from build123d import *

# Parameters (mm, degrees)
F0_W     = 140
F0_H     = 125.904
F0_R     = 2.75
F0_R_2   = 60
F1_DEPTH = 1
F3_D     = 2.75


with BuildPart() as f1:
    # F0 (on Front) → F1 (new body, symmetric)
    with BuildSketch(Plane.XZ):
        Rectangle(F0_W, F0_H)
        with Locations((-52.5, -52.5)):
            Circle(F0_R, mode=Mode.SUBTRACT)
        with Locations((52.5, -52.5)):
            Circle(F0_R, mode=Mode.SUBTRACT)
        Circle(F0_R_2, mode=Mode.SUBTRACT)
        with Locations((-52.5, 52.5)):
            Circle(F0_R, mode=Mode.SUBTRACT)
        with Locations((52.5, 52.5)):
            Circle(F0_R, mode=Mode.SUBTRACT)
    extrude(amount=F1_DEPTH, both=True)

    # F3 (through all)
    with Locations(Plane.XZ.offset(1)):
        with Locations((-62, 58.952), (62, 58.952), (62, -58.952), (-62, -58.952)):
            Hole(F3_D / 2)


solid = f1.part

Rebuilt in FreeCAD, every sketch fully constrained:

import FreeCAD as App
import Part
import Sketcher

V = App.Vector
Q = App.Units.Quantity


def add_polygon(sketch, points):
    """Adds a closed chain of lines whose ends are joined by coincident constraints."""
    first, n = sketch.GeometryCount, len(points)
    for a, b in zip(points, points[1:] + points[:1]):
        sketch.addGeometry(Part.LineSegment(App.Vector(*a, 0), App.Vector(*b, 0)), False)
    for i in range(n):
        sketch.addConstraint(Sketcher.Constraint("Coincident", first + i, 2, first + (i + 1) % n, 1))

doc = App.newDocument("Part")
params = doc.addObject("Spreadsheet::Sheet", "Params")
for row, (alias, value) in enumerate([
    ("sketch1_diameter", "120 mm"),
    ("sketch1_diameter2", "5.5 mm"),
    ("sketch1_width", "140 mm"),
    ("pad1_length", "2 mm"),
    ("sketch2_diameter", "2.75 mm"),
    ("hole_diameter", "2.75 mm"),
], start=1):
    params.set(f"A{row}", alias)
    params.set(f"B{row}", "=" + value)
    params.setAlias(f"B{row}", alias)

body = doc.addObject("PartDesign::Body", "Body")

# Sketch on XZ plane
sketch1 = body.newObject("Sketcher::SketchObject", "Sketch")
sketch1.AttachmentSupport = (doc.getObject("XZ_Plane"), [""])
sketch1.MapMode = "FlatFace"
add_polygon(sketch1, [(-70, 63), (-70, -63), (70, -63), (70, 63)])  # lines 0-3
sketch1.addGeometry(Part.Circle(V(-52.5, -52.5, 0), V(0, 0, 1), 2.8), False)  # 4
sketch1.addGeometry(Part.Circle(V(52.5, -52.5, 0), V(0, 0, 1), 2.8), False)  # 5
sketch1.addGeometry(Part.Circle(V(-52.5, 52.5, 0), V(0, 0, 1), 2.8), False)  # 6
sketch1.addGeometry(Part.Circle(V(0, 0, 0), V(0, 0, 1), 60), False)  # 7
sketch1.addGeometry(Part.Circle(V(52.5, 52.5, 0), V(0, 0, 1), 2.8), False)  # 8
sketch1.addConstraint(Sketcher.Constraint("Vertical", 0))
sketch1.addConstraint(Sketcher.Constraint("Horizontal", 1))
sketch1.addConstraint(Sketcher.Constraint("Vertical", 2))
sketch1.addConstraint(Sketcher.Constraint("Horizontal", 3))
sketch1.addConstraint(Sketcher.Constraint("Coincident", 7, 3, -1, 1))
sketch1.addConstraint(Sketcher.Constraint("Equal", 4, 5))
sketch1.addConstraint(Sketcher.Constraint("Equal", 5, 6))
sketch1.addConstraint(Sketcher.Constraint("Equal", 6, 8))
sketch1.addConstraint(Sketcher.Constraint("Symmetric", 5, 3, 6, 3, -1, 1))
sketch1.addConstraint(Sketcher.Constraint("Symmetric", 4, 3, 8, 3, -1, 1))
sketch1.addConstraint(Sketcher.Constraint("Symmetric", 0, 2, 2, 2, -1, 1))
sketch1.addConstraint(Sketcher.Constraint("Symmetric", 4, 3, 5, 3, -2))
sketch1.addConstraint(Sketcher.Constraint("Diameter", 7, Q("120 mm")))
sketch1.addConstraint(Sketcher.Constraint("Diameter", 4, Q("5.5 mm")))
sketch1.addConstraint(Sketcher.Constraint("DistanceX", 1, 1, 1, 2, Q("140 mm")))
sketch1.addConstraint(Sketcher.Constraint("DistanceX", 4, 3, 5, 3, Q("105 mm")))
sketch1.addConstraint(Sketcher.Constraint("DistanceY", 4, 3, 6, 3, Q("105 mm")))
sketch1.addConstraint(Sketcher.Constraint("DistanceY", 0, 2, 0, 1, Q("125.904 mm")))
sketch1.setExpression("Constraints[16]", "Params.sketch1_diameter")
sketch1.setExpression("Constraints[17]", "Params.sketch1_diameter2")
sketch1.setExpression("Constraints[18]", "Params.sketch1_width")
pad1 = body.newObject("PartDesign::Pad", "Pad")
pad1.Profile = sketch1
pad1.setExpression("Length", "Params.pad1_length")
pad1.Midplane = True

# Sketch on XZ plane
sketch2 = body.newObject("Sketcher::SketchObject", "Sketch001")
sketch2.AttachmentSupport = (doc.getObject("XZ_Plane"), [""])
sketch2.MapMode = "FlatFace"
sketch2.AttachmentOffset = App.Placement(V(0, 0, 1), App.Rotation())
sketch2.addGeometry(Part.Circle(V(-62, 59, 0), V(0, 0, 1), 1.4), False)
sketch2.addGeometry(Part.Circle(V(62, 59, 0), V(0, 0, 1), 1.4), False)
sketch2.addGeometry(Part.Circle(V(62, -59, 0), V(0, 0, 1), 1.4), False)
sketch2.addGeometry(Part.Circle(V(-62, -59, 0), V(0, 0, 1), 1.4), False)
sketch2.addConstraint(Sketcher.Constraint("Equal", 0, 1))
sketch2.addConstraint(Sketcher.Constraint("Equal", 1, 2))
sketch2.addConstraint(Sketcher.Constraint("Equal", 2, 3))
sketch2.addConstraint(Sketcher.Constraint("Symmetric", 0, 3, 2, 3, -1, 1))
sketch2.addConstraint(Sketcher.Constraint("Symmetric", 1, 3, 3, 3, -1, 1))
sketch2.addConstraint(Sketcher.Constraint("Symmetric", 0, 3, 1, 3, -2))
sketch2.addConstraint(Sketcher.Constraint("Diameter", 0, Q("2.75 mm")))
sketch2.addConstraint(Sketcher.Constraint("DistanceX", 0, 3, -1, 1, Q("62 mm")))
sketch2.addConstraint(Sketcher.Constraint("DistanceY", -1, 1, 0, 3, Q("58.952 mm")))
sketch2.setExpression("Constraints[6]", "Params.sketch2_diameter")
doc.recompute()
hole = body.newObject("PartDesign::Hole", "Hole")
hole.Profile = sketch2
hole.ThreadType = "None"
hole.setExpression("Diameter", "Params.hole_diameter")
hole.DepthType = "ThroughAll"

doc.recompute()
